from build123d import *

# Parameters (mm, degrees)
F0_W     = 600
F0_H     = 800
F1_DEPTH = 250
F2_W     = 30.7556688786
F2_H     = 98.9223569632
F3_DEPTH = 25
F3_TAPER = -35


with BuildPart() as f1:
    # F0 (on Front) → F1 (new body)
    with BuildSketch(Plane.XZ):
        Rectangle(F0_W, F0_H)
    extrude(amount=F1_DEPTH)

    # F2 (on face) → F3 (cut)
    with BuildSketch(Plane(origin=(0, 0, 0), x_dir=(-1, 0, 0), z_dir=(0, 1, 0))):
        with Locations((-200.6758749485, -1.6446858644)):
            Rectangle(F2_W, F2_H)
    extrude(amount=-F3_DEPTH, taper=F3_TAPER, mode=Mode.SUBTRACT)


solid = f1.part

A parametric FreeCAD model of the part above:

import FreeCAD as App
import Part
import Sketcher
from FreeCAD import Vector

doc = App.newDocument("Part")
body = doc.addObject("PartDesign::Body", "Body")

sketch1 = doc.addObject("Sketcher::SketchObject", "Sketch")
body.addObject(sketch1)
sketch1.AttachmentSupport = (doc.XZ_Plane, [""])
sketch1.MapMode = "FlatFace"
sketch1.addGeometry([
    Part.LineSegment(Vector(-300, 400, 0), Vector(-300, -400, 0)),
    Part.LineSegment(Vector(-300, -400, 0), Vector(300, -400, 0)),
    Part.LineSegment(Vector(300, -400, 0), Vector(300, 400, 0)),
    Part.LineSegment(Vector(300, 400, 0), Vector(-300, 400, 0)),
], False)
sketch1.addConstraint([
    Sketcher.Constraint("Coincident", 0, 2, 1, 1),
    Sketcher.Constraint("Coincident", 1, 2, 2, 1),
    Sketcher.Constraint("Coincident", 2, 2, 3, 1),
    Sketcher.Constraint("Coincident", 3, 2, 0, 1),
    Sketcher.Constraint("Vertical", 0),
    Sketcher.Constraint("Horizontal", 1),
    Sketcher.Constraint("Vertical", 2),
    Sketcher.Constraint("Horizontal", 3),
    Sketcher.Constraint("Symmetric", 0, 2, 2, 2, -1, 1),
    Sketcher.Constraint("DistanceX", 1, 1, 1, 2, 600.0),
    Sketcher.Constraint("DistanceY", 0, 2, 0, 1, 800.0),
])
pad1 = doc.addObject("PartDesign::Pad", "Pad")
body.addObject(pad1)
pad1.Profile = sketch1
pad1.Length = 250

sketch2 = doc.addObject("Sketcher::SketchObject", "Sketch001")
body.addObject(sketch2)
sketch2.AttachmentSupport = (doc.XZ_Plane, [""])
sketch2.MapMode = "FlatFace"
sketch2.addGeometry([
    Part.LineSegment(Vector(216.053709, 47.816493, 0), Vector(216.053709, -51.105864, 0)),
    Part.LineSegment(Vector(216.053709, -51.105864, 0), Vector(185.298041, -51.105864, 0)),
    Part.LineSegment(Vector(185.298041, -51.105864, 0), Vector(185.298041, 47.816493, 0)),
    Part.LineSegment(Vector(185.298041, 47.816493, 0), Vector(216.053709, 47.816493, 0)),
], False)
sketch2.addConstraint([
    Sketcher.Constraint("Coincident", 0, 2, 1, 1),
    Sketcher.Constraint("Coincident", 1, 2, 2, 1),
    Sketcher.Constraint("Coincident", 2, 2, 3, 1),
    Sketcher.Constraint("Coincident", 3, 2, 0, 1),
    Sketcher.Constraint("Vertical", 0),
    Sketcher.Constraint("Horizontal", 1),
    Sketcher.Constraint("Vertical", 2),
    Sketcher.Constraint("Horizontal", 3),
    Sketcher.Constraint("DistanceX", 1, 2, 1, 1, 30.755669),
    Sketcher.Constraint("DistanceY", 0, 2, 0, 1, 98.922357),
    Sketcher.Constraint("DistanceX", -1, 1, 0, 2, 216.053709),
    Sketcher.Constraint("DistanceY", 0, 2, -1, 1, 51.105864),
])
pocket1 = doc.addObject("PartDesign::Pocket", "Pocket")
body.addObject(pocket1)
pocket1.Profile = sketch2
pocket1.Length = 25
pocket1.Reversed = True
pocket1.TaperAngle = 35

doc.recompute()
